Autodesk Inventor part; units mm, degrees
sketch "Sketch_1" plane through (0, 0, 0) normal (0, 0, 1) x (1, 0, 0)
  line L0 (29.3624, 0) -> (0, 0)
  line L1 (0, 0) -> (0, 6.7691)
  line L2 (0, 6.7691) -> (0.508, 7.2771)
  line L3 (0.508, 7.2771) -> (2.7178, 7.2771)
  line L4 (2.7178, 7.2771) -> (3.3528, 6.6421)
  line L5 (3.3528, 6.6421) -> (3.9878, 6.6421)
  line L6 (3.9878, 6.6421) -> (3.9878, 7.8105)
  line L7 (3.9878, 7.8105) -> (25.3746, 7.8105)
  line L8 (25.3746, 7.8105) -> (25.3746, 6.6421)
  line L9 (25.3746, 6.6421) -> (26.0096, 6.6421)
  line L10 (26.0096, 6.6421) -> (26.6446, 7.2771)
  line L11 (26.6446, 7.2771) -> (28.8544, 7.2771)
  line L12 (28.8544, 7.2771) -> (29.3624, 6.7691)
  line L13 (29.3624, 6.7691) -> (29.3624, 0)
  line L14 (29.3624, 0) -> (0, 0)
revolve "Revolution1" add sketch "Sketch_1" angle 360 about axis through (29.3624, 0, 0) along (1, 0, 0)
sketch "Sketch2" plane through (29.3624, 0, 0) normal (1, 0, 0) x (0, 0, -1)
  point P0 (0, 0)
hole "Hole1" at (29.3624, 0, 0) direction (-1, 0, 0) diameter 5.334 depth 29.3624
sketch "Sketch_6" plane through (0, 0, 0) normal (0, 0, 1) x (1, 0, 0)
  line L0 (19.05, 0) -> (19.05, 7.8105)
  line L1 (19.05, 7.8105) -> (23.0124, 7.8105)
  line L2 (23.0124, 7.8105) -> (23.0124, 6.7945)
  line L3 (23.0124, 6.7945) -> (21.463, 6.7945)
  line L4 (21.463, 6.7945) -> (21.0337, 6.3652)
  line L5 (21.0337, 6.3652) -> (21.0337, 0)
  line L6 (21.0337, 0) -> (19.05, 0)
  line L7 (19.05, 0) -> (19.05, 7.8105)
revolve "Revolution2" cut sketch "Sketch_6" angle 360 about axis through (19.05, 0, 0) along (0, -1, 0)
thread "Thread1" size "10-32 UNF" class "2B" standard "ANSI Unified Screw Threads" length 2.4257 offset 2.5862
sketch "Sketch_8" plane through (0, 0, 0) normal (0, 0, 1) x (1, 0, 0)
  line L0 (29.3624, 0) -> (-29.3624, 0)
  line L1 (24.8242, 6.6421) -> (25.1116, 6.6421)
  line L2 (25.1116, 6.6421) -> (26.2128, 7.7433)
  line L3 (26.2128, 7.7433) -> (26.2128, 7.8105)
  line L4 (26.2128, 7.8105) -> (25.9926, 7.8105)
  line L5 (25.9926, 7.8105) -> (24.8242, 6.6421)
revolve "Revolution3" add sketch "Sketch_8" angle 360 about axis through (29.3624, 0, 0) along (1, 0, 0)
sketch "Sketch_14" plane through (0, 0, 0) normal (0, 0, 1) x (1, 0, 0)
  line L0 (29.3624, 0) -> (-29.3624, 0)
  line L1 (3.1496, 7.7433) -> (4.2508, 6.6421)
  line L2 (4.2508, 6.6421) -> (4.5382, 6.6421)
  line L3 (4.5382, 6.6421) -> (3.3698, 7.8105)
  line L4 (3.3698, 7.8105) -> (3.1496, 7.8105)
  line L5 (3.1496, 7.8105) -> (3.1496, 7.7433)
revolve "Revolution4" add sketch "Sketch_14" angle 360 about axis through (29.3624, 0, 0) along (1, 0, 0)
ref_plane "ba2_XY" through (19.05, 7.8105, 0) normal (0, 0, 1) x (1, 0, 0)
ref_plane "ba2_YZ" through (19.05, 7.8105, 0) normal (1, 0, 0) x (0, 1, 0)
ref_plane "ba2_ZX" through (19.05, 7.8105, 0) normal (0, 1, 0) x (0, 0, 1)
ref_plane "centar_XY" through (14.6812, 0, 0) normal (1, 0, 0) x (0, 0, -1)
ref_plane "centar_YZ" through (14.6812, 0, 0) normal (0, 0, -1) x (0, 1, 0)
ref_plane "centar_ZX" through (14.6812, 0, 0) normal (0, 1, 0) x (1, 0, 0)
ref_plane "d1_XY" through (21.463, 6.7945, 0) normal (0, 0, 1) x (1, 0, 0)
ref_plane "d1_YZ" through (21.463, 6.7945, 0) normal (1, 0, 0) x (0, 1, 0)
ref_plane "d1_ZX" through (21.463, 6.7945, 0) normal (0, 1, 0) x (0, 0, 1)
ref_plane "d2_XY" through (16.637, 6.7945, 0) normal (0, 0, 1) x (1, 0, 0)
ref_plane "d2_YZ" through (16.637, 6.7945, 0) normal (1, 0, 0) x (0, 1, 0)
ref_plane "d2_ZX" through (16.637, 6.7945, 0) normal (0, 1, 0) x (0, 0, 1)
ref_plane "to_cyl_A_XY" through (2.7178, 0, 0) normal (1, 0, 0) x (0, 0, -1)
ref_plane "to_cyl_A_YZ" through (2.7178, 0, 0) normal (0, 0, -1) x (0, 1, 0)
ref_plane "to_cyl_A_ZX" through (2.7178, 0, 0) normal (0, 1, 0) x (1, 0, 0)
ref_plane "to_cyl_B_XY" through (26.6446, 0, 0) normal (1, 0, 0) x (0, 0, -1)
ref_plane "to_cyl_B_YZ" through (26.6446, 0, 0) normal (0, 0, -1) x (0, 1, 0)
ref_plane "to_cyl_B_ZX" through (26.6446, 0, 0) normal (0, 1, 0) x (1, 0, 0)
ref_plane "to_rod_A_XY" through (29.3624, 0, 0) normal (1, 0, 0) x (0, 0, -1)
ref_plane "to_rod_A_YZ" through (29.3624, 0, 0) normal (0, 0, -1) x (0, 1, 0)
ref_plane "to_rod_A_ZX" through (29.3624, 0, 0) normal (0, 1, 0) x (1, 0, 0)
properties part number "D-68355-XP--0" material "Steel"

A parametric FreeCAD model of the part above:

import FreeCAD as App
import Part
import Sketcher
Q = App.Units.Quantity

doc = App.newDocument("Part")
params = doc.addObject("Spreadsheet::Sheet", "Params")
for row, (alias, value) in enumerate([
    ("sketch1_width", "1.156 in"),
    ("sketch1_width2", "0.087 in"),
    ("sketch1_width3", "0.025 in"),
    ("sketch1_width4", "0.842 in"),
    ("sketch1_height", "0.046 in"),
    ("revolution_angle", "360 deg"),
    ("sketch2_diameter", "0.21 in"),
    ("hole_diameter", "0.21 in"),
    ("hole_depth", "1.156 in"),
    ("sketch3_height", "0.04 in"),
    ("sketch3_width", "0.061 in"),
    ("sketch3_width2", "0.156 in"),
    ("groove_angle", "360 deg"),
    ("revolution2_angle", "360 deg"),
    ("revolution3_angle", "360 deg"),
], start=1):
    params.set(f"A{row}", alias)
    params.set(f"B{row}", "=" + value)
    params.setAlias(f"B{row}", alias)

body = doc.addObject("PartDesign::Body", "Body")

# Sketch on XY plane
sketch1 = doc.addObject("Sketcher::SketchObject", "Sketch")
body.addObject(sketch1)
sketch1.AttachmentSupport = (doc.XY_Plane, [""])
sketch1.MapMode = "FlatFace"
sketch1.addGeometry(Part.LineSegment(App.Vector(0, 0, 0), App.Vector(29.4, 0, 0)), False)
sketch1.addGeometry(Part.LineSegment(App.Vector(29.4, 0, 0), App.Vector(29.4, 6.8, 0)), False)
sketch1.addGeometry(Part.LineSegment(App.Vector(29.4, 6.8, 0), App.Vector(28.9, 7.3, 0)), False)
sketch1.addGeometry(Part.LineSegment(App.Vector(28.9, 7.3, 0), App.Vector(26.6, 7.3, 0)), False)
sketch1.addGeometry(Part.LineSegment(App.Vector(26.6, 7.3, 0), App.Vector(26, 6.6, 0)), False)
sketch1.addGeometry(Part.LineSegment(App.Vector(26, 6.6, 0), App.Vector(25.4, 6.6, 0)), False)
sketch1.addGeometry(Part.LineSegment(App.Vector(25.4, 6.6, 0), App.Vector(25.4, 7.8, 0)), False)
sketch1.addGeometry(Part.LineSegment(App.Vector(25.4, 7.8, 0), App.Vector(4, 7.8, 0)), False)
sketch1.addGeometry(Part.LineSegment(App.Vector(4, 7.8, 0), App.Vector(4, 6.6, 0)), False)
sketch1.addGeometry(Part.LineSegment(App.Vector(4, 6.6, 0), App.Vector(3.4, 6.6, 0)), False)
sketch1.addGeometry(Part.LineSegment(App.Vector(3.4, 6.6, 0), App.Vector(2.7, 7.3, 0)), False)
sketch1.addGeometry(Part.LineSegment(App.Vector(2.7, 7.3, 0), App.Vector(0.5, 7.3, 0)), False)
sketch1.addGeometry(Part.LineSegment(App.Vector(0.5, 7.3, 0), App.Vector(0, 6.8, 0)), False)
sketch1.addGeometry(Part.LineSegment(App.Vector(0, 6.8, 0), App.Vector(0, 0, 0)), False)
sketch1.addConstraint(Sketcher.Constraint("Coincident", 0, 2, 1, 1))
sketch1.addConstraint(Sketcher.Constraint("Coincident", 1, 2, 2, 1))
sketch1.addConstraint(Sketcher.Constraint("Coincident", 2, 2, 3, 1))
sketch1.addConstraint(Sketcher.Constraint("Coincident", 3, 2, 4, 1))
sketch1.addConstraint(Sketcher.Constraint("Coincident", 4, 2, 5, 1))
sketch1.addConstraint(Sketcher.Constraint("Coincident", 5, 2, 6, 1))
sketch1.addConstraint(Sketcher.Constraint("Coincident", 6, 2, 7, 1))
sketch1.addConstraint(Sketcher.Constraint("Coincident", 7, 2, 8, 1))
sketch1.addConstraint(Sketcher.Constraint("Coincident", 8, 2, 9, 1))
sketch1.addConstraint(Sketcher.Constraint("Coincident", 9, 2, 10, 1))
sketch1.addConstraint(Sketcher.Constraint("Coincident", 10, 2, 11, 1))
sketch1.addConstraint(Sketcher.Constraint("Coincident", 11, 2, 12, 1))
sketch1.addConstraint(Sketcher.Constraint("Coincident", 12, 2, 13, 1))
sketch1.addConstraint(Sketcher.Constraint("Coincident", 13, 2, 0, 1))
sketch1.addConstraint(Sketcher.Constraint("Horizontal", 0))
sketch1.addConstraint(Sketcher.Constraint("Vertical", 1))
sketch1.addConstraint(Sketcher.Constraint("Horizontal", 3))
sketch1.addConstraint(Sketcher.Constraint("Horizontal", 5))
sketch1.addConstraint(Sketcher.Constraint("Vertical", 6))
sketch1.addConstraint(Sketcher.Constraint("Horizontal", 7))
sketch1.addConstraint(Sketcher.Constraint("Vertical", 8))
sketch1.addConstraint(Sketcher.Constraint("Horizontal", 9))
sketch1.addConstraint(Sketcher.Constraint("Horizontal", 11))
sketch1.addConstraint(Sketcher.Constraint("Vertical", 13))
sketch1.addConstraint(Sketcher.Constraint("Coincident", 13, 2, -1, 1))
sketch1.addConstraint(Sketcher.Constraint("Perpendicular", 2, 4))
sketch1.addConstraint(Sketcher.Constraint("Perpendicular", 4, 10))
sketch1.addConstraint(Sketcher.Constraint("Perpendicular", 10, 12))
sketch1.addConstraint(Sketcher.Constraint("Horizontal", 5, 2, 8, 2))
sketch1.addConstraint(Sketcher.Constraint("Horizontal", 3, 2, 10, 2))
sketch1.addConstraint(Sketcher.Constraint("Horizontal", 1, 2, 12, 2))
sketch1.addConstraint(Sketcher.Constraint("Equal", 5, 9))
sketch1.addConstraint(Sketcher.Constraint("Equal", 3, 11))
sketch1.addConstraint(Sketcher.Constraint("Equal", 4, 10))
sketch1.addConstraint(Sketcher.Constraint("DistanceX", 0, 1, 0, 2, Q("1.156 in")))
sketch1.addConstraint(Sketcher.Constraint("DistanceX", 3, 2, 3, 1, Q("0.087 in")))
sketch1.addConstraint(Sketcher.Constraint("DistanceX", 5, 2, 5, 1, Q("0.025 in")))
sketch1.addConstraint(Sketcher.Constraint("DistanceX", 7, 2, 7, 1, Q("0.842 in")))
sketch1.addConstraint(Sketcher.Constraint("DistanceY", 6, 1, 6, 2, Q("0.046 in")))
sketch1.addConstraint(Sketcher.Constraint("DistanceX", -1, 1, 11, 2, Q("0.02 in")))
sketch1.addConstraint(Sketcher.Constraint("DistanceY", 1, 1, 1, 2, Q("0.2665 in")))
sketch1.setExpression("Constraints[34]", "Params.sketch1_width")
sketch1.setExpression("Constraints[35]", "Params.sketch1_width2")
sketch1.setExpression("Constraints[36]", "Params.sketch1_width3")
sketch1.setExpression("Constraints[37]", "Params.sketch1_width4")
sketch1.setExpression("Constraints[38]", "Params.sketch1_height")
revolution = doc.addObject("PartDesign::Revolution", "Revolution")
body.addObject(revolution)
revolution.Profile = sketch1
revolution.ReferenceAxis = (sketch1, ["H_Axis"])
revolution.setExpression("Angle", "Params.revolution_angle")

# Sketch on YZ plane
sketch2 = doc.addObject("Sketcher::SketchObject", "Sketch001")
body.addObject(sketch2)
sketch2.AttachmentSupport = (doc.YZ_Plane, [""])
sketch2.MapMode = "FlatFace"
sketch2.AttachmentOffset = App.Placement(App.Vector(0, 0, 1.156 * 25.4), App.Rotation())
sketch2.addGeometry(Part.Circle(App.Vector(0, 0, 0), App.Vector(0, 0, 1), 2.7), False)
sketch2.addConstraint(Sketcher.Constraint("Coincident", 0, 3, -1, 1))
sketch2.addConstraint(Sketcher.Constraint("Diameter", 0, Q("0.21 in")))
sketch2.setExpression("Constraints[1]", "Params.sketch2_diameter")
doc.recompute()
hole = doc.addObject("PartDesign::Hole", "Hole")
body.addObject(hole)
hole.Profile = sketch2
hole.ThreadType = "None"
hole.setExpression("Diameter", "Params.hole_diameter")
hole.DepthType = "Dimension"
hole.setExpression("Depth", "Params.hole_depth")
hole.DrillPoint = "Flat"

# Sketch on XY plane
sketch3 = doc.addObject("Sketcher::SketchObject", "Sketch002")
body.addObject(sketch3)
sketch3.AttachmentSupport = (doc.XY_Plane, [""])
sketch3.MapMode = "FlatFace"
sketch3.addGeometry(Part.LineSegment(App.Vector(19.1, 7.8, 0), App.Vector(19.1, 0, 0)), False)
sketch3.addGeometry(Part.LineSegment(App.Vector(19.1, 0, 0), App.Vector(21, 0, 0)), False)
sketch3.addGeometry(Part.LineSegment(App.Vector(21, 0, 0), App.Vector(21, 6.4, 0)), False)
sketch3.addGeometry(Part.LineSegment(App.Vector(21, 6.4, 0), App.Vector(21.5, 6.8, 0)), False)
sketch3.addGeometry(Part.LineSegment(App.Vector(21.5, 6.8, 0), App.Vector(23, 6.8, 0)), False)
sketch3.addGeometry(Part.LineSegment(App.Vector(23, 6.8, 0), App.Vector(23, 7.8, 0)), False)
sketch3.addGeometry(Part.LineSegment(App.Vector(23, 7.8, 0), App.Vector(19.1, 7.8, 0)), False)
sketch3.addGeometry(Part.LineSegment(App.Vector(19.1, 7.8, 0), App.Vector(19.1, 0, 0)), True)  # axis
sketch3.addConstraint(Sketcher.Constraint("Coincident", 0, 2, 1, 1))
sketch3.addConstraint(Sketcher.Constraint("Coincident", 1, 2, 2, 1))
sketch3.addConstraint(Sketcher.Constraint("Coincident", 2, 2, 3, 1))
sketch3.addConstraint(Sketcher.Constraint("Coincident", 3, 2, 4, 1))
sketch3.addConstraint(Sketcher.Constraint("Coincident", 4, 2, 5, 1))
sketch3.addConstraint(Sketcher.Constraint("Coincident", 5, 2, 6, 1))
sketch3.addConstraint(Sketcher.Constraint("Coincident", 6, 2, 0, 1))
sketch3.addConstraint(Sketcher.Constraint("Vertical", 0))
sketch3.addConstraint(Sketcher.Constraint("Horizontal", 1))
sketch3.addConstraint(Sketcher.Constraint("Vertical", 2))
sketch3.addConstraint(Sketcher.Constraint("Horizontal", 4))
sketch3.addConstraint(Sketcher.Constraint("Vertical", 5))
sketch3.addConstraint(Sketcher.Constraint("Horizontal", 6))
sketch3.addConstraint(Sketcher.Constraint("Vertical", 7))
sketch3.addConstraint(Sketcher.Constraint("Coincident", 7, 1, 6, 2))
sketch3.addConstraint(Sketcher.Constraint("PointOnObject", 0, 2, -1))
sketch3.addConstraint(Sketcher.Constraint("PointOnObject", 7, 2, -1))
sketch3.addConstraint(Sketcher.Constraint("Angle", 3, Q("45 deg")))
sketch3.addConstraint(Sketcher.Constraint("DistanceY", 5, 1, 5, 2, Q("0.04 in")))
sketch3.addConstraint(Sketcher.Constraint("DistanceX", 4, 1, 4, 2, Q("0.061 in")))
sketch3.addConstraint(Sketcher.Constraint("DistanceX", 6, 2, 6, 1, Q("0.156 in")))
sketch3.addConstraint(Sketcher.Constraint("DistanceX", -1, 1, 0, 2, Q("0.75 in")))
sketch3.addConstraint(Sketcher.Constraint("DistanceX", 1, 1, 1, 2, Q("0.0781 in")))
sketch3.addConstraint(Sketcher.Constraint("DistanceY", 0, 2, 0, 1, Q("0.3075 in")))
sketch3.setExpression("Constraints[18]", "Params.sketch3_height")
sketch3.setExpression("Constraints[19]", "Params.sketch3_width")
sketch3.setExpression("Constraints[20]", "Params.sketch3_width2")
groove = doc.addObject("PartDesign::Groove", "Groove")
body.addObject(groove)
groove.Profile = sketch3
groove.ReferenceAxis = (sketch3, ["Axis0"])
groove.setExpression("Angle", "Params.groove_angle")

# Sketch on XY plane
sketch4 = doc.addObject("Sketcher::SketchObject", "Sketch003")
body.addObject(sketch4)
sketch4.AttachmentSupport = (doc.XY_Plane, [""])
sketch4.MapMode = "FlatFace"
sketch4.addGeometry(Part.LineSegment(App.Vector(25.99, 7.81, 0), App.Vector(24.82, 6.64, 0)), False)
sketch4.addGeometry(Part.LineSegment(App.Vector(24.82, 6.64, 0), App.Vector(25.11, 6.64, 0)), False)
sketch4.addGeometry(Part.LineSegment(App.Vector(25.11, 6.64, 0), App.Vector(26.21, 7.74, 0)), False)
sketch4.addGeometry(Part.LineSegment(App.Vector(26.21, 7.74, 0), App.Vector(26.21, 7.81, 0)), False)
sketch4.addGeometry(Part.LineSegment(App.Vector(26.21, 7.81, 0), App.Vector(25.99, 7.81, 0)), False)
sketch4.addConstraint(Sketcher.Constraint("Coincident", 0, 2, 1, 1))
sketch4.addConstraint(Sketcher.Constraint("Coincident", 1, 2, 2, 1))
sketch4.addConstraint(Sketcher.Constraint("Coincident", 2, 2, 3, 1))
sketch4.addConstraint(Sketcher.Constraint("Coincident", 3, 2, 4, 1))
sketch4.addConstraint(Sketcher.Constraint("Coincident", 4, 2, 0, 1))
sketch4.addConstraint(Sketcher.Constraint("Horizontal", 1))
sketch4.addConstraint(Sketcher.Constraint("Vertical", 3))
sketch4.addConstraint(Sketcher.Constraint("Horizontal", 4))
sketch4.addConstraint(Sketcher.Constraint("Parallel", 0, 2))
sketch4.addConstraint(Sketcher.Constraint("Angle", 0, Q("-135 deg")))
sketch4.addConstraint(Sketcher.Constraint("DistanceX", -1, 1, 2, 2, Q("1.032 in")))
sketch4.addConstraint(Sketcher.Constraint("DistanceY", 1, 2, 3, 2, Q("0.046 in")))
sketch4.addConstraint(Sketcher.Constraint("DistanceX", 1, 1, 1, 2, 0.2874))
sketch4.addConstraint(Sketcher.Constraint("DistanceX", 4, 2, 4, 1, 0.2202))
sketch4.addConstraint(Sketcher.Constraint("DistanceY", -1, 1, 0, 2, Q("0.2615 in")))
revolution2 = doc.addObject("PartDesign::Revolution", "Revolution001")
body.addObject(revolution2)
revolution2.Profile = sketch4
revolution2.ReferenceAxis = (sketch4, ["H_Axis"])
revolution2.setExpression("Angle", "Params.revolution2_angle")

# Sketch on XY plane
sketch5 = doc.addObject("Sketcher::SketchObject", "Sketch004")
body.addObject(sketch5)
sketch5.AttachmentSupport = (doc.XY_Plane, [""])
sketch5.MapMode = "FlatFace"
sketch5.addGeometry(Part.LineSegment(App.Vector(3.15, 7.81, 0), App.Vector(3.15, 7.74, 0)), False)
sketch5.addGeometry(Part.LineSegment(App.Vector(3.15, 7.74, 0), App.Vector(4.25, 6.64, 0)), False)
sketch5.addGeometry(Part.LineSegment(App.Vector(4.25, 6.64, 0), App.Vector(4.54, 6.64, 0)), False)
sketch5.addGeometry(Part.LineSegment(App.Vector(4.54, 6.64, 0), App.Vector(3.37, 7.81, 0)), False)
sketch5.addGeometry(Part.LineSegment(App.Vector(3.37, 7.81, 0), App.Vector(3.15, 7.81, 0)), False)
sketch5.addConstraint(Sketcher.Constraint("Coincident", 0, 2, 1, 1))
sketch5.addConstraint(Sketcher.Constraint("Coincident", 1, 2, 2, 1))
sketch5.addConstraint(Sketcher.Constraint("Coincident", 2, 2, 3, 1))
sketch5.addConstraint(Sketcher.Constraint("Coincident", 3, 2, 4, 1))
sketch5.addConstraint(Sketcher.Constraint("Coincident", 4, 2, 0, 1))
sketch5.addConstraint(Sketcher.Constraint("Vertical", 0))
sketch5.addConstraint(Sketcher.Constraint("Horizontal", 2))
sketch5.addConstraint(Sketcher.Constraint("Horizontal", 4))
sketch5.addConstraint(Sketcher.Constraint("Parallel", 1, 3))
sketch5.addConstraint(Sketcher.Constraint("Angle", 1, Q("-45 deg")))
sketch5.addConstraint(Sketcher.Constraint("DistanceX", -1, 1, 0, 2, Q("0.124 in")))
sketch5.addConstraint(Sketcher.Constraint("DistanceY", 1, 2, 3, 2, Q("0.046 in")))
sketch5.addConstraint(Sketcher.Constraint("DistanceX", 2, 1, 2, 2, 0.2874))
sketch5.addConstraint(Sketcher.Constraint("DistanceX", 4, 2, 4, 1, 0.2202))
sketch5.addConstraint(Sketcher.Constraint("DistanceY", -1, 1, 1, 2, Q("0.2615 in")))
revolution3 = doc.addObject("PartDesign::Revolution", "Revolution002")
body.addObject(revolution3)
revolution3.Profile = sketch5
revolution3.ReferenceAxis = (sketch5, ["H_Axis"])
revolution3.setExpression("Angle", "Params.revolution3_angle")

doc.recompute()
